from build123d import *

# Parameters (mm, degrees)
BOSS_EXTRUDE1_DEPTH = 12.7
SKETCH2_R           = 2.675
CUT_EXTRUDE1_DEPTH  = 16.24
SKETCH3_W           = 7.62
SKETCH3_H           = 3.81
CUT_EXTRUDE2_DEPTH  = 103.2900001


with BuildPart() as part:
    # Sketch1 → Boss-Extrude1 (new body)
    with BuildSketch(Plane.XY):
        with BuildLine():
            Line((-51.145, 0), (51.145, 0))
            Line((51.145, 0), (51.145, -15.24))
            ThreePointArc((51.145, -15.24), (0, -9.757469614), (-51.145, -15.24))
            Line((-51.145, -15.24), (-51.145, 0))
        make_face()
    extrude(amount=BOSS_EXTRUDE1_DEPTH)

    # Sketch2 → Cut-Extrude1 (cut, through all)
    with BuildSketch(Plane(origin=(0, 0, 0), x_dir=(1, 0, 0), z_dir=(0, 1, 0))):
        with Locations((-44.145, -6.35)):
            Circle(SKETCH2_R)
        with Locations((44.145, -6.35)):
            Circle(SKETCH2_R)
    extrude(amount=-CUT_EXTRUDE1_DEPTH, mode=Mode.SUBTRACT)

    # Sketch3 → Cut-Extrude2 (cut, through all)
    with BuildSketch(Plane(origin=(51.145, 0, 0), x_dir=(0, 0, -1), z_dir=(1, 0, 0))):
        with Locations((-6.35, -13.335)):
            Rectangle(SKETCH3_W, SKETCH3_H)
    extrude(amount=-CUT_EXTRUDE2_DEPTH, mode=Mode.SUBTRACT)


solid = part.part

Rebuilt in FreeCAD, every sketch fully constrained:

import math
import FreeCAD as App
import Part
import Sketcher
from FreeCAD import Vector
Q = App.Units.Quantity

doc = App.newDocument("Part")
params = doc.addObject("Spreadsheet::Sheet", "Params")
for row, (alias, value) in enumerate([
    ("sketch1_radius", "9.5 in"),
    ("sketch1_height", "0.6 in"),
    ("pad1_length", "0.5 in"),
    ("sketch3_height", "0.3 in"),
    ("sketch3_width", "0.15 in"),
], start=1):
    params.set(f"A{row}", alias)
    params.set(f"B{row}", "=" + value)
    params.setAlias(f"B{row}", alias)

body = doc.addObject("PartDesign::Body", "Body")

sketch1 = doc.addObject("Sketcher::SketchObject", "Sketch")
body.addObject(sketch1)
sketch1.AttachmentSupport = (doc.XY_Plane, [""])
sketch1.MapMode = "FlatFace"
sketch1.addGeometry([
    Part.LineSegment(Vector(51.145, 0, 0), Vector(-51.145, 0, 0)),
    Part.LineSegment(Vector(-51.145, 0, 0), Vector(-51.145, -15.24, 0)),
    Part.ArcOfCircle(Part.Circle(Vector(0, -251.05747, 0), Vector(0, 0, 1), 241.3), math.radians(77.762992), math.radians(102.237008)),
    Part.LineSegment(Vector(51.145, -15.24, 0), Vector(51.145, 0, 0)),
], False)
sketch1.addConstraint([
    Sketcher.Constraint("Coincident", 0, 2, 1, 1),
    Sketcher.Constraint("Coincident", 1, 2, 2, 2),
    Sketcher.Constraint("Coincident", 2, 1, 3, 1),
    Sketcher.Constraint("Coincident", 3, 2, 0, 1),
    Sketcher.Constraint("Horizontal", 0),
    Sketcher.Constraint("Vertical", 1),
    Sketcher.Constraint("Vertical", 3),
    Sketcher.Constraint("Symmetric", 0, 2, 3, 2, -1, 1),
    Sketcher.Constraint("PointOnObject", 2, 3, -2),
    Sketcher.Constraint("Radius", 2, Q("9.5 in")),
    Sketcher.Constraint("DistanceY", 1, 2, 1, 1, Q("0.6 in")),
    Sketcher.Constraint("DistanceX", 0, 2, 0, 1, Q("102.29 mm")),
])
sketch1.setExpression("Constraints[9]", "Params.sketch1_radius")
sketch1.setExpression("Constraints[10]", "Params.sketch1_height")
pad1 = doc.addObject("PartDesign::Pad", "Pad")
body.addObject(pad1)
pad1.Profile = sketch1
pad1.setExpression("Length", "Params.pad1_length")

sketch2 = doc.addObject("Sketcher::SketchObject", "Sketch001")
body.addObject(sketch2)
sketch2.AttachmentSupport = (doc.XZ_Plane, [""])
sketch2.MapMode = "FlatFace"
sketch2.addGeometry([
    Part.Circle(Vector(-44.145, 6.35, 0), Vector(0, 0, 1), 2.675),
    Part.Circle(Vector(44.145, 6.35, 0), Vector(0, 0, 1), 2.675),
], False)
sketch2.addConstraint([
    Sketcher.Constraint("Equal", 0, 1),
    Sketcher.Constraint("Symmetric", 0, 3, 1, 3, -2),
    Sketcher.Constraint("Diameter", 0, Q("5.35 mm")),
    Sketcher.Constraint("DistanceY", -1, 1, 0, 3, Q("0.25 in")),
    Sketcher.Constraint("DistanceX", 0, 3, -1, 1, Q("44.145 mm")),
])
pocket1 = doc.addObject("PartDesign::Pocket", "Pocket")
body.addObject(pocket1)
pocket1.Profile = sketch2
pocket1.Type = "ThroughAll"
pocket1.Reversed = True

sketch3 = doc.addObject("Sketcher::SketchObject", "Sketch002")
body.addObject(sketch3)
sketch3.AttachmentSupport = (doc.YZ_Plane, [""])
sketch3.MapMode = "FlatFace"
sketch3.AttachmentOffset = App.Placement(Vector(0, 0, 51.145), App.Rotation())
sketch3.addGeometry([
    Part.LineSegment(Vector(-11.43, 10.16, 0), Vector(-15.24, 10.16, 0)),
    Part.LineSegment(Vector(-15.24, 10.16, 0), Vector(-15.24, 2.54, 0)),
    Part.LineSegment(Vector(-15.24, 2.54, 0), Vector(-11.43, 2.54, 0)),
    Part.LineSegment(Vector(-11.43, 2.54, 0), Vector(-11.43, 10.16, 0)),
], False)
sketch3.addConstraint([
    Sketcher.Constraint("Coincident", 0, 2, 1, 1),
    Sketcher.Constraint("Coincident", 1, 2, 2, 1),
    Sketcher.Constraint("Coincident", 2, 2, 3, 1),
    Sketcher.Constraint("Coincident", 3, 2, 0, 1),
    Sketcher.Constraint("Horizontal", 0),
    Sketcher.Constraint("Vertical", 1),
    Sketcher.Constraint("Horizontal", 2),
    Sketcher.Constraint("Vertical", 3),
    Sketcher.Constraint("DistanceY", 1, 2, 1, 1, Q("0.3 in")),
    Sketcher.Constraint("DistanceX", 0, 2, 0, 1, Q("0.15 in")),
    Sketcher.Constraint("DistanceX", 0, 2, -1, 1, Q("0.6 in")),
    Sketcher.Constraint("DistanceY", -1, 1, 0, 2, Q("0.4 in")),
])
sketch3.setExpression("Constraints[8]", "Params.sketch3_height")
sketch3.setExpression("Constraints[9]", "Params.sketch3_width")
pocket2 = doc.addObject("PartDesign::Pocket", "Pocket001")
body.addObject(pocket2)
pocket2.Profile = sketch3
pocket2.Type = "ThroughAll"

doc.recompute()
